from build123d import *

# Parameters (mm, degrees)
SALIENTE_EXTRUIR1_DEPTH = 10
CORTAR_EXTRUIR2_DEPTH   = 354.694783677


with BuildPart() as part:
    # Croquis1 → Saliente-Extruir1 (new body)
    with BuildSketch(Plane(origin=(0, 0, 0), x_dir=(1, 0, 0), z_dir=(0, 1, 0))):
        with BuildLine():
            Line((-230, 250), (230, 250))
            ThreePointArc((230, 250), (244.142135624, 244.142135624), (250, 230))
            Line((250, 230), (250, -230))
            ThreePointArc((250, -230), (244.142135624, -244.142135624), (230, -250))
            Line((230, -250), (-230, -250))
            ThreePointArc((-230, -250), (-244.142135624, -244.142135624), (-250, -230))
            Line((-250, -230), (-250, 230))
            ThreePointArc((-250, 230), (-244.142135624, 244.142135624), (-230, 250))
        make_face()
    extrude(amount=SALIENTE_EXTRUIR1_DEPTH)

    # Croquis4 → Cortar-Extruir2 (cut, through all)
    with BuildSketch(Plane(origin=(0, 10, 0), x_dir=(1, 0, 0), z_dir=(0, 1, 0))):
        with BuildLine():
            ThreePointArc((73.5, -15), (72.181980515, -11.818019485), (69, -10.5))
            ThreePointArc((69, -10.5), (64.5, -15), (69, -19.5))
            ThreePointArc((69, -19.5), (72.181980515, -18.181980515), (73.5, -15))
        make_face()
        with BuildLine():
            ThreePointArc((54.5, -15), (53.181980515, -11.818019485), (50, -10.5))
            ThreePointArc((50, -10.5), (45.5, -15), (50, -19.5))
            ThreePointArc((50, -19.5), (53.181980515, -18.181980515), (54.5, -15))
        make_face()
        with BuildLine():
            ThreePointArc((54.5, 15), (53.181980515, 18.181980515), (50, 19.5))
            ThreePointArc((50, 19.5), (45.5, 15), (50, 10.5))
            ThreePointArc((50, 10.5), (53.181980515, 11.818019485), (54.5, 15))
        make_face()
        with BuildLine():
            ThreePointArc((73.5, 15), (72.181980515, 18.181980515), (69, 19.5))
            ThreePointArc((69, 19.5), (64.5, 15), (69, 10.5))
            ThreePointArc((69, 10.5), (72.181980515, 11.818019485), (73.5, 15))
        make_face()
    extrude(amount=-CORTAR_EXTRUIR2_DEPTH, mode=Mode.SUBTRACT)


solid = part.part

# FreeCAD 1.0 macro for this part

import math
import FreeCAD as App
import Part
import Sketcher

V = App.Vector

doc = App.newDocument("Part")
body = doc.addObject("PartDesign::Body", "Body")

sketch1 = doc.addObject("Sketcher::SketchObject", "Sketch")
body.addObject(sketch1)
sketch1.AttachmentSupport = (doc.XZ_Plane, [""])
sketch1.MapMode = "FlatFace"
sketch1.addGeometry([
    Part.LineSegment(V(230, -250, 0), V(-230, -250, 0)),
    Part.ArcOfCircle(Part.Circle(V(-230, -230, 0), V(0, 0, 1), 20), math.radians(180), math.radians(270)),
    Part.LineSegment(V(-250, -230, 0), V(-250, 230, 0)),
    Part.ArcOfCircle(Part.Circle(V(-230, 230, 0), V(0, 0, 1), 20), math.radians(90), math.radians(180)),
    Part.LineSegment(V(-230, 250, 0), V(230, 250, 0)),
    Part.ArcOfCircle(Part.Circle(V(230, 230, 0), V(0, 0, 1), 20), math.radians(0), math.radians(90)),
    Part.LineSegment(V(250, 230, 0), V(250, -230, 0)),
    Part.ArcOfCircle(Part.Circle(V(230, -230, 0), V(0, 0, 1), 20), math.radians(-90), math.radians(0)),
], False)
sketch1.addConstraint([
    Sketcher.Constraint("Tangent", 0, 2, 1, 2),
    Sketcher.Constraint("Tangent", 1, 1, 2, 1),
    Sketcher.Constraint("Tangent", 2, 2, 3, 2),
    Sketcher.Constraint("Tangent", 3, 1, 4, 1),
    Sketcher.Constraint("Tangent", 4, 2, 5, 2),
    Sketcher.Constraint("Tangent", 5, 1, 6, 1),
    Sketcher.Constraint("Tangent", 6, 2, 7, 2),
    Sketcher.Constraint("Tangent", 7, 1, 0, 1),
    Sketcher.Constraint("Horizontal", 0),
    Sketcher.Constraint("Vertical", 2),
    Sketcher.Constraint("Horizontal", 4),
    Sketcher.Constraint("Vertical", 6),
    Sketcher.Constraint("Equal", 1, 3),
    Sketcher.Constraint("Equal", 3, 5),
    Sketcher.Constraint("Equal", 5, 7),
    Sketcher.Constraint("Symmetric", 1, 3, 5, 3, -1, 1),
    Sketcher.Constraint("Equal", 4, 2),
    Sketcher.Constraint("Radius", 1, 20.0),
    Sketcher.Constraint("DistanceX", 0, 2, 0, 1, 460.0),
])
pad1 = doc.addObject("PartDesign::Pad", "Pad")
body.addObject(pad1)
pad1.Profile = sketch1
pad1.Length = 10
pad1.Reversed = True

sketch2 = doc.addObject("Sketcher::SketchObject", "Sketch001")
body.addObject(sketch2)
sketch2.AttachmentSupport = (doc.XZ_Plane, [""])
sketch2.MapMode = "FlatFace"
sketch2.AttachmentOffset = App.Placement(V(0, 0, -10), App.Rotation())
sketch2.addGeometry([
    Part.ArcOfCircle(Part.Circle(V(69, 15, 0), V(0, 0, 1), 4.5), math.radians(-90), math.radians(0)),
    Part.ArcOfCircle(Part.Circle(V(69, 15, 0), V(0, 0, 1), 4.5), math.radians(90), math.radians(270)),
    Part.ArcOfCircle(Part.Circle(V(69, 15, 0), V(0, 0, 1), 4.5), math.radians(0), math.radians(90)),
    Part.ArcOfCircle(Part.Circle(V(50, 15, 0), V(0, 0, 1), 4.5), math.radians(-90), math.radians(0)),
    Part.ArcOfCircle(Part.Circle(V(50, 15, 0), V(0, 0, 1), 4.5), math.radians(90), math.radians(270)),
    Part.ArcOfCircle(Part.Circle(V(50, 15, 0), V(0, 0, 1), 4.5), math.radians(0), math.radians(90)),
    Part.ArcOfCircle(Part.Circle(V(50, -15, 0), V(0, 0, 1), 4.5), math.radians(-90), math.radians(0)),
    Part.ArcOfCircle(Part.Circle(V(50, -15, 0), V(0, 0, 1), 4.5), math.radians(90), math.radians(270)),
    Part.ArcOfCircle(Part.Circle(V(50, -15, 0), V(0, 0, 1), 4.5), math.radians(0), math.radians(90)),
    Part.ArcOfCircle(Part.Circle(V(69, -15, 0), V(0, 0, 1), 4.5), math.radians(-90), math.radians(0)),
    Part.ArcOfCircle(Part.Circle(V(69, -15, 0), V(0, 0, 1), 4.5), math.radians(90), math.radians(270)),
    Part.ArcOfCircle(Part.Circle(V(69, -15, 0), V(0, 0, 1), 4.5), math.radians(0), math.radians(90)),
], False)
sketch2.addConstraint([
    Sketcher.Constraint("Tangent", 0, 1, 1, 2),
    Sketcher.Constraint("Tangent", 1, 1, 2, 2),
    Sketcher.Constraint("Tangent", 2, 1, 0, 2),
    Sketcher.Constraint("Tangent", 3, 1, 4, 2),
    Sketcher.Constraint("Tangent", 4, 1, 5, 2),
    Sketcher.Constraint("Tangent", 5, 1, 3, 2),
    Sketcher.Constraint("Tangent", 6, 1, 7, 2),
    Sketcher.Constraint("Tangent", 7, 1, 8, 2),
    Sketcher.Constraint("Tangent", 8, 1, 6, 2),
    Sketcher.Constraint("Tangent", 9, 1, 10, 2),
    Sketcher.Constraint("Tangent", 10, 1, 11, 2),
    Sketcher.Constraint("Tangent", 11, 1, 9, 2),
    Sketcher.Constraint("Equal", 2, 3),
    Sketcher.Constraint("Equal", 5, 6),
    Sketcher.Constraint("Equal", 8, 9),
    Sketcher.Constraint("Symmetric", 3, 3, 6, 3, -1),
    Sketcher.Constraint("Symmetric", 0, 3, 9, 3, -1),
    Sketcher.Constraint("Horizontal", 2, 3, 3, 3),
    Sketcher.Constraint("Horizontal", 5, 3, 2, 1),
    Sketcher.Constraint("Horizontal", 2, 1, 5, 1),
    Sketcher.Constraint("Horizontal", 11, 3, 8, 1),
    Sketcher.Constraint("Horizontal", 8, 1, 11, 1),
    Sketcher.Constraint("Vertical", 11, 3, 0, 1),
    Sketcher.Constraint("Vertical", 0, 1, 1, 1),
    Sketcher.Constraint("Vertical", 8, 3, 3, 1),
    Sketcher.Constraint("Vertical", 3, 1, 4, 1),
    Sketcher.Constraint("Vertical", 4, 1, 6, 1),
    Sketcher.Constraint("Vertical", 6, 1, 7, 1),
    Sketcher.Constraint("Vertical", 1, 1, 9, 1),
    Sketcher.Constraint("Vertical", 9, 1, 10, 1),
    Sketcher.Constraint("Radius", 0, 4.5),
    Sketcher.Constraint("DistanceX", -1, 1, 0, 3, 69.0),
    Sketcher.Constraint("DistanceY", -1, 1, 0, 3, 15.0),
    Sketcher.Constraint("DistanceX", -1, 1, 3, 3, 50.0),
])
pocket1 = doc.addObject("PartDesign::Pocket", "Pocket")
body.addObject(pocket1)
pocket1.Profile = sketch2
pocket1.Type = "ThroughAll"
pocket1.Reversed = True

doc.recompute()
